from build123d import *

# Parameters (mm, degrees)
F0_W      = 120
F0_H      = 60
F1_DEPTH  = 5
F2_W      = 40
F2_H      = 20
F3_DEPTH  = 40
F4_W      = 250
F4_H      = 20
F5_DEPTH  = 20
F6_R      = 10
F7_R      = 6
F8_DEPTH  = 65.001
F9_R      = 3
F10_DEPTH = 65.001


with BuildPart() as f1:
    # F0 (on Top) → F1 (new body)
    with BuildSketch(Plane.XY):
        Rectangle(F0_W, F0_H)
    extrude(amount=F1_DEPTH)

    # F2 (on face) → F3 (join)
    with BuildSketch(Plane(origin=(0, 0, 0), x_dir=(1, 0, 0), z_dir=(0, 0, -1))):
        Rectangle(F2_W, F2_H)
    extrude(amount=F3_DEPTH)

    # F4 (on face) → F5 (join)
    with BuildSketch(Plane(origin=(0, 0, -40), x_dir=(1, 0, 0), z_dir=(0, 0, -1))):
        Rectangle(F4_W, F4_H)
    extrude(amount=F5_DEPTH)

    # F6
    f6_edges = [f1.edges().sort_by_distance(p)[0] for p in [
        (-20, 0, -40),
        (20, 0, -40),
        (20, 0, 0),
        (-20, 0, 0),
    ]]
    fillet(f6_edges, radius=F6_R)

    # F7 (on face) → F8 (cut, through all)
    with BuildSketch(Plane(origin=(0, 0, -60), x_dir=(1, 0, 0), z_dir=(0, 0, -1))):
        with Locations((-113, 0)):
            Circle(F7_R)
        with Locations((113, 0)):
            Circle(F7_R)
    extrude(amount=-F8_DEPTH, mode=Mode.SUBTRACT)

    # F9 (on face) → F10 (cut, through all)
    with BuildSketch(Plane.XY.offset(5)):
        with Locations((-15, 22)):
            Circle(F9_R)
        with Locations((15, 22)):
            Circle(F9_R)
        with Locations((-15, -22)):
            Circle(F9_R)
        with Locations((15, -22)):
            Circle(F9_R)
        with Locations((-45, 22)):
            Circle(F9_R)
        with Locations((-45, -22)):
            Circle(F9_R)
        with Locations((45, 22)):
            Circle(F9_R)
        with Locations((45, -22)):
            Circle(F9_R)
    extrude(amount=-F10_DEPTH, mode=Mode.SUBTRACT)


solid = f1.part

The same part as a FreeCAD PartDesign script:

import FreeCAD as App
import Part
import Sketcher
from FreeCAD import Vector


def edges_at(feature, points):
    """Names of the edges that pass closest to the given points."""
    edges = feature.Shape.Edges
    near = lambda p: min(range(len(edges)), key=lambda i: edges[i].distToShape(Part.Vertex(*p))[0])
    return sorted({f"Edge{near(p) + 1}" for p in points})

doc = App.newDocument("Part")
params = doc.addObject("Spreadsheet::Sheet", "Params")
for row, (alias, value) in enumerate([
    ("sketch1_width", "120 mm"),
    ("sketch1_height", "60 mm"),
    ("pad1_length", "5 mm"),
    ("sketch2_width", "40 mm"),
    ("sketch2_height", "20 mm"),
    ("pad2_length", "40 mm"),
    ("sketch3_width", "250 mm"),
    ("sketch3_height", "20 mm"),
    ("pad3_length", "20 mm"),
    ("fillet_radius", "10 mm"),
    ("sketch4_diameter", "12 mm"),
    ("sketch5_diameter", "6 mm"),
], start=1):
    params.set(f"A{row}", alias)
    params.set(f"B{row}", "=" + value)
    params.setAlias(f"B{row}", alias)

body = doc.addObject("PartDesign::Body", "Body")

# Sketch on XY plane
sketch1 = body.newObject("Sketcher::SketchObject", "Sketch")
sketch1.AttachmentSupport = (doc.getObject("XY_Plane"), [""])
sketch1.MapMode = "FlatFace"
sketch1.addGeometry([
    Part.LineSegment(Vector(-60, 30, 0), Vector(-60, -30, 0)),
    Part.LineSegment(Vector(-60, -30, 0), Vector(60, -30, 0)),
    Part.LineSegment(Vector(60, -30, 0), Vector(60, 30, 0)),
    Part.LineSegment(Vector(60, 30, 0), Vector(-60, 30, 0)),
], False)
sketch1.addConstraint([
    Sketcher.Constraint("Coincident", 0, 2, 1, 1),
    Sketcher.Constraint("Coincident", 1, 2, 2, 1),
    Sketcher.Constraint("Coincident", 2, 2, 3, 1),
    Sketcher.Constraint("Coincident", 3, 2, 0, 1),
    Sketcher.Constraint("Vertical", 0),
    Sketcher.Constraint("Horizontal", 1),
    Sketcher.Constraint("Vertical", 2),
    Sketcher.Constraint("Horizontal", 3),
    Sketcher.Constraint("Symmetric", 0, 2, 2, 2, -1, 1),
    Sketcher.Constraint("DistanceX", 1, 1, 1, 2, 120.0),
    Sketcher.Constraint("DistanceY", 0, 2, 0, 1, 60.0),
])
sketch1.setExpression("Constraints[9]", "Params.sketch1_width")
sketch1.setExpression("Constraints[10]", "Params.sketch1_height")
pad1 = body.newObject("PartDesign::Pad", "Pad")
pad1.Profile = sketch1
pad1.setExpression("Length", "Params.pad1_length")

# Sketch on XY plane
sketch2 = body.newObject("Sketcher::SketchObject", "Sketch001")
sketch2.AttachmentSupport = (doc.getObject("XY_Plane"), [""])
sketch2.MapMode = "FlatFace"
sketch2.addGeometry([
    Part.LineSegment(Vector(-20, -10, 0), Vector(-20, 10, 0)),
    Part.LineSegment(Vector(-20, 10, 0), Vector(20, 10, 0)),
    Part.LineSegment(Vector(20, 10, 0), Vector(20, -10, 0)),
    Part.LineSegment(Vector(20, -10, 0), Vector(-20, -10, 0)),
], False)
sketch2.addConstraint([
    Sketcher.Constraint("Coincident", 0, 2, 1, 1),
    Sketcher.Constraint("Coincident", 1, 2, 2, 1),
    Sketcher.Constraint("Coincident", 2, 2, 3, 1),
    Sketcher.Constraint("Coincident", 3, 2, 0, 1),
    Sketcher.Constraint("Vertical", 0),
    Sketcher.Constraint("Horizontal", 1),
    Sketcher.Constraint("Vertical", 2),
    Sketcher.Constraint("Horizontal", 3),
    Sketcher.Constraint("Symmetric", 0, 2, 2, 2, -1, 1),
    Sketcher.Constraint("DistanceX", 1, 1, 1, 2, 40.0),
    Sketcher.Constraint("DistanceY", 0, 1, 0, 2, 20.0),
])
sketch2.setExpression("Constraints[9]", "Params.sketch2_width")
sketch2.setExpression("Constraints[10]", "Params.sketch2_height")
pad2 = body.newObject("PartDesign::Pad", "Pad001")
pad2.Profile = sketch2
pad2.setExpression("Length", "Params.pad2_length")
pad2.Reversed = True

# Sketch on XY plane
sketch3 = body.newObject("Sketcher::SketchObject", "Sketch002")
sketch3.AttachmentSupport = (doc.getObject("XY_Plane"), [""])
sketch3.MapMode = "FlatFace"
sketch3.AttachmentOffset = App.Placement(Vector(0, 0, -40), App.Rotation())
sketch3.addGeometry([
    Part.LineSegment(Vector(-125, -10, 0), Vector(-125, 10, 0)),
    Part.LineSegment(Vector(-125, 10, 0), Vector(125, 10, 0)),
    Part.LineSegment(Vector(125, 10, 0), Vector(125, -10, 0)),
    Part.LineSegment(Vector(125, -10, 0), Vector(-125, -10, 0)),
], False)
sketch3.addConstraint([
    Sketcher.Constraint("Coincident", 0, 2, 1, 1),
    Sketcher.Constraint("Coincident", 1, 2, 2, 1),
    Sketcher.Constraint("Coincident", 2, 2, 3, 1),
    Sketcher.Constraint("Coincident", 3, 2, 0, 1),
    Sketcher.Constraint("Vertical", 0),
    Sketcher.Constraint("Horizontal", 1),
    Sketcher.Constraint("Vertical", 2),
    Sketcher.Constraint("Horizontal", 3),
    Sketcher.Constraint("Symmetric", 0, 2, 2, 2, -1, 1),
    Sketcher.Constraint("DistanceX", 1, 1, 1, 2, 250.0),
    Sketcher.Constraint("DistanceY", 0, 1, 0, 2, 20.0),
])
sketch3.setExpression("Constraints[9]", "Params.sketch3_width")
sketch3.setExpression("Constraints[10]", "Params.sketch3_height")
pad3 = body.newObject("PartDesign::Pad", "Pad002")
pad3.Profile = sketch3
pad3.setExpression("Length", "Params.pad3_length")
pad3.Reversed = True
doc.recompute()

fillet = body.newObject("PartDesign::Fillet", "Fillet")
fillet.Base = (pad3, edges_at(pad3, [
    (-20, 0, -40),
    (20, 0, -40),
    (20, 0, 0),
    (-20, 0, 0),
]))
fillet.setExpression("Radius", "Params.fillet_radius")

# Sketch on XY plane
sketch4 = body.newObject("Sketcher::SketchObject", "Sketch003")
sketch4.AttachmentSupport = (doc.getObject("XY_Plane"), [""])
sketch4.MapMode = "FlatFace"
sketch4.AttachmentOffset = App.Placement(Vector(0, 0, -60), App.Rotation())
sketch4.addGeometry([
    Part.Circle(Vector(-113, 0, 0), Vector(0, 0, 1), 6),
    Part.Circle(Vector(113, 0, 0), Vector(0, 0, 1), 6),
], False)
sketch4.addConstraint([
    Sketcher.Constraint("Equal", 0, 1),
    Sketcher.Constraint("Symmetric", 0, 3, 1, 3, -1, 1),
    Sketcher.Constraint("PointOnObject", 0, 3, -1),
    Sketcher.Constraint("Diameter", 0, 12.0),
    Sketcher.Constraint("DistanceX", 0, 3, -1, 1, 113.0),
])
sketch4.setExpression("Constraints[3]", "Params.sketch4_diameter")
pocket1 = body.newObject("PartDesign::Pocket", "Pocket")
pocket1.Profile = sketch4
pocket1.Type = "ThroughAll"
pocket1.Reversed = True

# Sketch on XY plane
sketch5 = body.newObject("Sketcher::SketchObject", "Sketch004")
sketch5.AttachmentSupport = (doc.getObject("XY_Plane"), [""])
sketch5.MapMode = "FlatFace"
sketch5.AttachmentOffset = App.Placement(Vector(0, 0, 5), App.Rotation())
sketch5.addGeometry([
    Part.Circle(Vector(-15, 22, 0), Vector(0, 0, 1), 3),  # 0
    Part.Circle(Vector(15, 22, 0), Vector(0, 0, 1), 3),  # 1
    Part.Circle(Vector(-15, -22, 0), Vector(0, 0, 1), 3),  # 2
    Part.Circle(Vector(15, -22, 0), Vector(0, 0, 1), 3),  # 3
    Part.Circle(Vector(-45, 22, 0), Vector(0, 0, 1), 3),  # 4
    Part.Circle(Vector(-45, -22, 0), Vector(0, 0, 1), 3),  # 5
    Part.Circle(Vector(45, 22, 0), Vector(0, 0, 1), 3),  # 6
    Part.Circle(Vector(45, -22, 0), Vector(0, 0, 1), 3),  # 7
], False)
sketch5.addConstraint([
    Sketcher.Constraint("Equal", 0, 1),
    Sketcher.Constraint("Equal", 1, 2),
    Sketcher.Constraint("Equal", 2, 3),
    Sketcher.Constraint("Equal", 3, 4),
    Sketcher.Constraint("Equal", 4, 5),
    Sketcher.Constraint("Equal", 5, 6),
    Sketcher.Constraint("Equal", 6, 7),
    Sketcher.Constraint("Symmetric", 1, 3, 2, 3, -1, 1),
    Sketcher.Constraint("Symmetric", 0, 3, 3, 3, -1, 1),
    Sketcher.Constraint("Symmetric", 5, 3, 6, 3, -1, 1),
    Sketcher.Constraint("Symmetric", 4, 3, 7, 3, -1, 1),
    Sketcher.Constraint("Symmetric", 0, 3, 1, 3, -2),
    Sketcher.Constraint("Symmetric", 4, 3, 6, 3, -2),
    Sketcher.Constraint("Horizontal", 1, 3, 4, 3),
    Sketcher.Constraint("Diameter", 0, 6.0),
    Sketcher.Constraint("DistanceX", 0, 3, -1, 1, 15.0),
    Sketcher.Constraint("DistanceY", -1, 1, 0, 3, 22.0),
    Sketcher.Constraint("DistanceX", 4, 3, -1, 1, 45.0),
])
sketch5.setExpression("Constraints[14]", "Params.sketch5_diameter")
pocket2 = body.newObject("PartDesign::Pocket", "Pocket001")
pocket2.Profile = sketch5
pocket2.Type = "ThroughAll"

doc.recompute()
